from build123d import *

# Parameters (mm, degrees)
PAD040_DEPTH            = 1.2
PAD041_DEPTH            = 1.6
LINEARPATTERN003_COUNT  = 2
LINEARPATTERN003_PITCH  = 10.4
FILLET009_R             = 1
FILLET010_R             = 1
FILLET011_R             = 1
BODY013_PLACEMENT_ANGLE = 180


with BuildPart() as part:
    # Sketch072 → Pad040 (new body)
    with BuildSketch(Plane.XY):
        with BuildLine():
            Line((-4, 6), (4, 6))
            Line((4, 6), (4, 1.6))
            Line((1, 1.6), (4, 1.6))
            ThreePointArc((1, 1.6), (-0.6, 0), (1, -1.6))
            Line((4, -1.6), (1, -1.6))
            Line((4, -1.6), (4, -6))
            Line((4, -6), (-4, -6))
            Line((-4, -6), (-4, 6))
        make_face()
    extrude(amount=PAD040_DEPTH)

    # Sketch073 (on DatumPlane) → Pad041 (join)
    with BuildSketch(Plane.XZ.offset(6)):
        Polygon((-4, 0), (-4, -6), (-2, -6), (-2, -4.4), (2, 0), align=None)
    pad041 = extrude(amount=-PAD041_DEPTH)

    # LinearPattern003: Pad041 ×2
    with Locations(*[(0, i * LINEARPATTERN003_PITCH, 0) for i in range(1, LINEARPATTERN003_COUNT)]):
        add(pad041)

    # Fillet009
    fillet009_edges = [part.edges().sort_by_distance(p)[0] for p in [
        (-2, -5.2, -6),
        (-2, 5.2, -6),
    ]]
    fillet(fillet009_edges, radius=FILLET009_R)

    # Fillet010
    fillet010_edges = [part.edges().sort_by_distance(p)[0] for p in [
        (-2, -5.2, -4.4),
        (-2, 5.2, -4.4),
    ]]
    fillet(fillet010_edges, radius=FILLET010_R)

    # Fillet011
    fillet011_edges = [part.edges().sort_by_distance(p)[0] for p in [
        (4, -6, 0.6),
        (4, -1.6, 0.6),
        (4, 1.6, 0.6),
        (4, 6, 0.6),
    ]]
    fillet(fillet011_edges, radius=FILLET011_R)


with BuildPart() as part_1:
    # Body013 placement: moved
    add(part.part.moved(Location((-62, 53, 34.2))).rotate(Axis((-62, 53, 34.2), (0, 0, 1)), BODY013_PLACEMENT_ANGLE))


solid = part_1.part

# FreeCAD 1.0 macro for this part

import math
import FreeCAD as App
import Part
import Sketcher

V = App.Vector


def edges_at(feature, points):
    """Names of the edges that pass closest to the given points."""
    edges = feature.Shape.Edges
    near = lambda p: min(range(len(edges)), key=lambda i: edges[i].distToShape(Part.Vertex(*p))[0])
    return sorted({f"Edge{near(p) + 1}" for p in points})


def add_polygon(sketch, points):
    """Adds a closed chain of lines whose ends are joined by coincident constraints."""
    first, n = sketch.GeometryCount, len(points)
    for a, b in zip(points, points[1:] + points[:1]):
        sketch.addGeometry(Part.LineSegment(App.Vector(*a, 0), App.Vector(*b, 0)), False)
    for i in range(n):
        sketch.addConstraint(Sketcher.Constraint("Coincident", first + i, 2, first + (i + 1) % n, 1))

doc = App.newDocument("Part")
body = doc.addObject("PartDesign::Body", "Body")

sketch1 = body.newObject("Sketcher::SketchObject", "Sketch")
sketch1.AttachmentSupport = (doc.getObject("XY_Plane"), [""])
sketch1.MapMode = "FlatFace"
sketch1.addGeometry([
    Part.LineSegment(V(4, 6, 0), V(-4, 6, 0)),
    Part.LineSegment(V(-4, 6, 0), V(-4, -6, 0)),
    Part.LineSegment(V(-4, -6, 0), V(4, -6, 0)),
    Part.LineSegment(V(4, -6, 0), V(4, -1.6, 0)),
    Part.LineSegment(V(4, -1.6, 0), V(1, -1.6, 0)),
    Part.ArcOfCircle(Part.Circle(V(1, 0, 0), V(0, 0, 1), 1.6), math.radians(90), math.radians(270)),
    Part.LineSegment(V(1, 1.6, 0), V(4, 1.6, 0)),
    Part.LineSegment(V(4, 1.6, 0), V(4, 6, 0)),
], False)
sketch1.addConstraint([
    Sketcher.Constraint("Coincident", 0, 2, 1, 1),
    Sketcher.Constraint("Coincident", 1, 2, 2, 1),
    Sketcher.Constraint("Coincident", 2, 2, 3, 1),
    Sketcher.Constraint("Coincident", 3, 2, 4, 1),
    Sketcher.Constraint("Tangent", 4, 2, 5, 2),
    Sketcher.Constraint("Tangent", 5, 1, 6, 1),
    Sketcher.Constraint("Coincident", 6, 2, 7, 1),
    Sketcher.Constraint("Coincident", 7, 2, 0, 1),
    Sketcher.Constraint("Horizontal", 0),
    Sketcher.Constraint("Vertical", 1),
    Sketcher.Constraint("Horizontal", 2),
    Sketcher.Constraint("Vertical", 3),
    Sketcher.Constraint("Horizontal", 4),
    Sketcher.Constraint("Horizontal", 6),
    Sketcher.Constraint("Vertical", 7),
    Sketcher.Constraint("Symmetric", 0, 2, 2, 2, -1, 1),
    Sketcher.Constraint("Symmetric", 3, 2, 6, 2, -1),
    Sketcher.Constraint("Radius", 5, 1.6),
    Sketcher.Constraint("DistanceX", 0, 2, 0, 1, 8.0),
    Sketcher.Constraint("DistanceX", 4, 2, 4, 1, 3.0),
    Sketcher.Constraint("DistanceY", 1, 2, 1, 1, 12.0),
])
pad1 = body.newObject("PartDesign::Pad", "Pad")
pad1.Profile = sketch1
pad1.Length = 1.2

sketch2 = body.newObject("Sketcher::SketchObject", "Sketch001")
sketch2.AttachmentSupport = (doc.getObject("XZ_Plane"), [""])
sketch2.MapMode = "FlatFace"
sketch2.AttachmentOffset = App.Placement(V(0, 0, 6), App.Rotation())
add_polygon(sketch2, [(-4, 0), (-4, -6), (-2, -6), (-2, -4.4), (2, 0)])
sketch2.addConstraint([
    Sketcher.Constraint("Vertical", 0),
    Sketcher.Constraint("Horizontal", 1),
    Sketcher.Constraint("Vertical", 2),
    Sketcher.Constraint("Horizontal", 4),
    Sketcher.Constraint("PointOnObject", 3, 2, -1),
    Sketcher.Constraint("Equal", 4, 0),
    Sketcher.Constraint("DistanceX", 1, 1, 1, 2, 2.0),
    Sketcher.Constraint("DistanceX", 4, 2, 4, 1, 6.0),
    Sketcher.Constraint("DistanceY", 2, 1, 2, 2, 1.6),
    Sketcher.Constraint("DistanceX", 0, 2, -1, 1, 4.0),
])
pad2 = body.newObject("PartDesign::Pad", "Pad001")
pad2.Profile = sketch2
pad2.Length = 1.6
pad2.Reversed = True
doc.recompute()

linearpattern = body.newObject("PartDesign::LinearPattern", "LinearPattern")
linearpattern.Originals = [pad2]
linearpattern.Direction = (doc.getObject("Y_Axis"), [""])
linearpattern.Mode = "offset"
linearpattern.Offset = 10.4
linearpattern.Occurrences = 2
body.Tip = linearpattern
doc.recompute()

fillet = body.newObject("PartDesign::Fillet", "Fillet")
fillet.Base = (linearpattern, edges_at(linearpattern, [(-2, -5.2, -6), (-2, 5.2, -6)]))
fillet.Radius = 1
doc.recompute()

fillet2 = body.newObject("PartDesign::Fillet", "Fillet001")
fillet2.Base = (fillet, edges_at(fillet, [(-2, -5.2, -4.4), (-2, 5.2, -4.4)]))
fillet2.Radius = 1
doc.recompute()

fillet3 = body.newObject("PartDesign::Fillet", "Fillet002")
fillet3.Base = (fillet2, edges_at(fillet2, [
    (4, -6, 0.6),
    (4, -1.6, 0.6),
    (4, 1.6, 0.6),
    (4, 6, 0.6),
]))
fillet3.Radius = 1
body2 = doc.addObject("PartDesign::Body", "Body001")
doc.recompute()

body.Placement = App.Placement(V(-62, 53, 34.2), App.Rotation(V(0, 0, 1), 180))
boolean = body2.newObject("PartDesign::Boolean", "Boolean")
boolean.Type = "Fuse"
boolean.addObjects([body])

doc.recompute()
